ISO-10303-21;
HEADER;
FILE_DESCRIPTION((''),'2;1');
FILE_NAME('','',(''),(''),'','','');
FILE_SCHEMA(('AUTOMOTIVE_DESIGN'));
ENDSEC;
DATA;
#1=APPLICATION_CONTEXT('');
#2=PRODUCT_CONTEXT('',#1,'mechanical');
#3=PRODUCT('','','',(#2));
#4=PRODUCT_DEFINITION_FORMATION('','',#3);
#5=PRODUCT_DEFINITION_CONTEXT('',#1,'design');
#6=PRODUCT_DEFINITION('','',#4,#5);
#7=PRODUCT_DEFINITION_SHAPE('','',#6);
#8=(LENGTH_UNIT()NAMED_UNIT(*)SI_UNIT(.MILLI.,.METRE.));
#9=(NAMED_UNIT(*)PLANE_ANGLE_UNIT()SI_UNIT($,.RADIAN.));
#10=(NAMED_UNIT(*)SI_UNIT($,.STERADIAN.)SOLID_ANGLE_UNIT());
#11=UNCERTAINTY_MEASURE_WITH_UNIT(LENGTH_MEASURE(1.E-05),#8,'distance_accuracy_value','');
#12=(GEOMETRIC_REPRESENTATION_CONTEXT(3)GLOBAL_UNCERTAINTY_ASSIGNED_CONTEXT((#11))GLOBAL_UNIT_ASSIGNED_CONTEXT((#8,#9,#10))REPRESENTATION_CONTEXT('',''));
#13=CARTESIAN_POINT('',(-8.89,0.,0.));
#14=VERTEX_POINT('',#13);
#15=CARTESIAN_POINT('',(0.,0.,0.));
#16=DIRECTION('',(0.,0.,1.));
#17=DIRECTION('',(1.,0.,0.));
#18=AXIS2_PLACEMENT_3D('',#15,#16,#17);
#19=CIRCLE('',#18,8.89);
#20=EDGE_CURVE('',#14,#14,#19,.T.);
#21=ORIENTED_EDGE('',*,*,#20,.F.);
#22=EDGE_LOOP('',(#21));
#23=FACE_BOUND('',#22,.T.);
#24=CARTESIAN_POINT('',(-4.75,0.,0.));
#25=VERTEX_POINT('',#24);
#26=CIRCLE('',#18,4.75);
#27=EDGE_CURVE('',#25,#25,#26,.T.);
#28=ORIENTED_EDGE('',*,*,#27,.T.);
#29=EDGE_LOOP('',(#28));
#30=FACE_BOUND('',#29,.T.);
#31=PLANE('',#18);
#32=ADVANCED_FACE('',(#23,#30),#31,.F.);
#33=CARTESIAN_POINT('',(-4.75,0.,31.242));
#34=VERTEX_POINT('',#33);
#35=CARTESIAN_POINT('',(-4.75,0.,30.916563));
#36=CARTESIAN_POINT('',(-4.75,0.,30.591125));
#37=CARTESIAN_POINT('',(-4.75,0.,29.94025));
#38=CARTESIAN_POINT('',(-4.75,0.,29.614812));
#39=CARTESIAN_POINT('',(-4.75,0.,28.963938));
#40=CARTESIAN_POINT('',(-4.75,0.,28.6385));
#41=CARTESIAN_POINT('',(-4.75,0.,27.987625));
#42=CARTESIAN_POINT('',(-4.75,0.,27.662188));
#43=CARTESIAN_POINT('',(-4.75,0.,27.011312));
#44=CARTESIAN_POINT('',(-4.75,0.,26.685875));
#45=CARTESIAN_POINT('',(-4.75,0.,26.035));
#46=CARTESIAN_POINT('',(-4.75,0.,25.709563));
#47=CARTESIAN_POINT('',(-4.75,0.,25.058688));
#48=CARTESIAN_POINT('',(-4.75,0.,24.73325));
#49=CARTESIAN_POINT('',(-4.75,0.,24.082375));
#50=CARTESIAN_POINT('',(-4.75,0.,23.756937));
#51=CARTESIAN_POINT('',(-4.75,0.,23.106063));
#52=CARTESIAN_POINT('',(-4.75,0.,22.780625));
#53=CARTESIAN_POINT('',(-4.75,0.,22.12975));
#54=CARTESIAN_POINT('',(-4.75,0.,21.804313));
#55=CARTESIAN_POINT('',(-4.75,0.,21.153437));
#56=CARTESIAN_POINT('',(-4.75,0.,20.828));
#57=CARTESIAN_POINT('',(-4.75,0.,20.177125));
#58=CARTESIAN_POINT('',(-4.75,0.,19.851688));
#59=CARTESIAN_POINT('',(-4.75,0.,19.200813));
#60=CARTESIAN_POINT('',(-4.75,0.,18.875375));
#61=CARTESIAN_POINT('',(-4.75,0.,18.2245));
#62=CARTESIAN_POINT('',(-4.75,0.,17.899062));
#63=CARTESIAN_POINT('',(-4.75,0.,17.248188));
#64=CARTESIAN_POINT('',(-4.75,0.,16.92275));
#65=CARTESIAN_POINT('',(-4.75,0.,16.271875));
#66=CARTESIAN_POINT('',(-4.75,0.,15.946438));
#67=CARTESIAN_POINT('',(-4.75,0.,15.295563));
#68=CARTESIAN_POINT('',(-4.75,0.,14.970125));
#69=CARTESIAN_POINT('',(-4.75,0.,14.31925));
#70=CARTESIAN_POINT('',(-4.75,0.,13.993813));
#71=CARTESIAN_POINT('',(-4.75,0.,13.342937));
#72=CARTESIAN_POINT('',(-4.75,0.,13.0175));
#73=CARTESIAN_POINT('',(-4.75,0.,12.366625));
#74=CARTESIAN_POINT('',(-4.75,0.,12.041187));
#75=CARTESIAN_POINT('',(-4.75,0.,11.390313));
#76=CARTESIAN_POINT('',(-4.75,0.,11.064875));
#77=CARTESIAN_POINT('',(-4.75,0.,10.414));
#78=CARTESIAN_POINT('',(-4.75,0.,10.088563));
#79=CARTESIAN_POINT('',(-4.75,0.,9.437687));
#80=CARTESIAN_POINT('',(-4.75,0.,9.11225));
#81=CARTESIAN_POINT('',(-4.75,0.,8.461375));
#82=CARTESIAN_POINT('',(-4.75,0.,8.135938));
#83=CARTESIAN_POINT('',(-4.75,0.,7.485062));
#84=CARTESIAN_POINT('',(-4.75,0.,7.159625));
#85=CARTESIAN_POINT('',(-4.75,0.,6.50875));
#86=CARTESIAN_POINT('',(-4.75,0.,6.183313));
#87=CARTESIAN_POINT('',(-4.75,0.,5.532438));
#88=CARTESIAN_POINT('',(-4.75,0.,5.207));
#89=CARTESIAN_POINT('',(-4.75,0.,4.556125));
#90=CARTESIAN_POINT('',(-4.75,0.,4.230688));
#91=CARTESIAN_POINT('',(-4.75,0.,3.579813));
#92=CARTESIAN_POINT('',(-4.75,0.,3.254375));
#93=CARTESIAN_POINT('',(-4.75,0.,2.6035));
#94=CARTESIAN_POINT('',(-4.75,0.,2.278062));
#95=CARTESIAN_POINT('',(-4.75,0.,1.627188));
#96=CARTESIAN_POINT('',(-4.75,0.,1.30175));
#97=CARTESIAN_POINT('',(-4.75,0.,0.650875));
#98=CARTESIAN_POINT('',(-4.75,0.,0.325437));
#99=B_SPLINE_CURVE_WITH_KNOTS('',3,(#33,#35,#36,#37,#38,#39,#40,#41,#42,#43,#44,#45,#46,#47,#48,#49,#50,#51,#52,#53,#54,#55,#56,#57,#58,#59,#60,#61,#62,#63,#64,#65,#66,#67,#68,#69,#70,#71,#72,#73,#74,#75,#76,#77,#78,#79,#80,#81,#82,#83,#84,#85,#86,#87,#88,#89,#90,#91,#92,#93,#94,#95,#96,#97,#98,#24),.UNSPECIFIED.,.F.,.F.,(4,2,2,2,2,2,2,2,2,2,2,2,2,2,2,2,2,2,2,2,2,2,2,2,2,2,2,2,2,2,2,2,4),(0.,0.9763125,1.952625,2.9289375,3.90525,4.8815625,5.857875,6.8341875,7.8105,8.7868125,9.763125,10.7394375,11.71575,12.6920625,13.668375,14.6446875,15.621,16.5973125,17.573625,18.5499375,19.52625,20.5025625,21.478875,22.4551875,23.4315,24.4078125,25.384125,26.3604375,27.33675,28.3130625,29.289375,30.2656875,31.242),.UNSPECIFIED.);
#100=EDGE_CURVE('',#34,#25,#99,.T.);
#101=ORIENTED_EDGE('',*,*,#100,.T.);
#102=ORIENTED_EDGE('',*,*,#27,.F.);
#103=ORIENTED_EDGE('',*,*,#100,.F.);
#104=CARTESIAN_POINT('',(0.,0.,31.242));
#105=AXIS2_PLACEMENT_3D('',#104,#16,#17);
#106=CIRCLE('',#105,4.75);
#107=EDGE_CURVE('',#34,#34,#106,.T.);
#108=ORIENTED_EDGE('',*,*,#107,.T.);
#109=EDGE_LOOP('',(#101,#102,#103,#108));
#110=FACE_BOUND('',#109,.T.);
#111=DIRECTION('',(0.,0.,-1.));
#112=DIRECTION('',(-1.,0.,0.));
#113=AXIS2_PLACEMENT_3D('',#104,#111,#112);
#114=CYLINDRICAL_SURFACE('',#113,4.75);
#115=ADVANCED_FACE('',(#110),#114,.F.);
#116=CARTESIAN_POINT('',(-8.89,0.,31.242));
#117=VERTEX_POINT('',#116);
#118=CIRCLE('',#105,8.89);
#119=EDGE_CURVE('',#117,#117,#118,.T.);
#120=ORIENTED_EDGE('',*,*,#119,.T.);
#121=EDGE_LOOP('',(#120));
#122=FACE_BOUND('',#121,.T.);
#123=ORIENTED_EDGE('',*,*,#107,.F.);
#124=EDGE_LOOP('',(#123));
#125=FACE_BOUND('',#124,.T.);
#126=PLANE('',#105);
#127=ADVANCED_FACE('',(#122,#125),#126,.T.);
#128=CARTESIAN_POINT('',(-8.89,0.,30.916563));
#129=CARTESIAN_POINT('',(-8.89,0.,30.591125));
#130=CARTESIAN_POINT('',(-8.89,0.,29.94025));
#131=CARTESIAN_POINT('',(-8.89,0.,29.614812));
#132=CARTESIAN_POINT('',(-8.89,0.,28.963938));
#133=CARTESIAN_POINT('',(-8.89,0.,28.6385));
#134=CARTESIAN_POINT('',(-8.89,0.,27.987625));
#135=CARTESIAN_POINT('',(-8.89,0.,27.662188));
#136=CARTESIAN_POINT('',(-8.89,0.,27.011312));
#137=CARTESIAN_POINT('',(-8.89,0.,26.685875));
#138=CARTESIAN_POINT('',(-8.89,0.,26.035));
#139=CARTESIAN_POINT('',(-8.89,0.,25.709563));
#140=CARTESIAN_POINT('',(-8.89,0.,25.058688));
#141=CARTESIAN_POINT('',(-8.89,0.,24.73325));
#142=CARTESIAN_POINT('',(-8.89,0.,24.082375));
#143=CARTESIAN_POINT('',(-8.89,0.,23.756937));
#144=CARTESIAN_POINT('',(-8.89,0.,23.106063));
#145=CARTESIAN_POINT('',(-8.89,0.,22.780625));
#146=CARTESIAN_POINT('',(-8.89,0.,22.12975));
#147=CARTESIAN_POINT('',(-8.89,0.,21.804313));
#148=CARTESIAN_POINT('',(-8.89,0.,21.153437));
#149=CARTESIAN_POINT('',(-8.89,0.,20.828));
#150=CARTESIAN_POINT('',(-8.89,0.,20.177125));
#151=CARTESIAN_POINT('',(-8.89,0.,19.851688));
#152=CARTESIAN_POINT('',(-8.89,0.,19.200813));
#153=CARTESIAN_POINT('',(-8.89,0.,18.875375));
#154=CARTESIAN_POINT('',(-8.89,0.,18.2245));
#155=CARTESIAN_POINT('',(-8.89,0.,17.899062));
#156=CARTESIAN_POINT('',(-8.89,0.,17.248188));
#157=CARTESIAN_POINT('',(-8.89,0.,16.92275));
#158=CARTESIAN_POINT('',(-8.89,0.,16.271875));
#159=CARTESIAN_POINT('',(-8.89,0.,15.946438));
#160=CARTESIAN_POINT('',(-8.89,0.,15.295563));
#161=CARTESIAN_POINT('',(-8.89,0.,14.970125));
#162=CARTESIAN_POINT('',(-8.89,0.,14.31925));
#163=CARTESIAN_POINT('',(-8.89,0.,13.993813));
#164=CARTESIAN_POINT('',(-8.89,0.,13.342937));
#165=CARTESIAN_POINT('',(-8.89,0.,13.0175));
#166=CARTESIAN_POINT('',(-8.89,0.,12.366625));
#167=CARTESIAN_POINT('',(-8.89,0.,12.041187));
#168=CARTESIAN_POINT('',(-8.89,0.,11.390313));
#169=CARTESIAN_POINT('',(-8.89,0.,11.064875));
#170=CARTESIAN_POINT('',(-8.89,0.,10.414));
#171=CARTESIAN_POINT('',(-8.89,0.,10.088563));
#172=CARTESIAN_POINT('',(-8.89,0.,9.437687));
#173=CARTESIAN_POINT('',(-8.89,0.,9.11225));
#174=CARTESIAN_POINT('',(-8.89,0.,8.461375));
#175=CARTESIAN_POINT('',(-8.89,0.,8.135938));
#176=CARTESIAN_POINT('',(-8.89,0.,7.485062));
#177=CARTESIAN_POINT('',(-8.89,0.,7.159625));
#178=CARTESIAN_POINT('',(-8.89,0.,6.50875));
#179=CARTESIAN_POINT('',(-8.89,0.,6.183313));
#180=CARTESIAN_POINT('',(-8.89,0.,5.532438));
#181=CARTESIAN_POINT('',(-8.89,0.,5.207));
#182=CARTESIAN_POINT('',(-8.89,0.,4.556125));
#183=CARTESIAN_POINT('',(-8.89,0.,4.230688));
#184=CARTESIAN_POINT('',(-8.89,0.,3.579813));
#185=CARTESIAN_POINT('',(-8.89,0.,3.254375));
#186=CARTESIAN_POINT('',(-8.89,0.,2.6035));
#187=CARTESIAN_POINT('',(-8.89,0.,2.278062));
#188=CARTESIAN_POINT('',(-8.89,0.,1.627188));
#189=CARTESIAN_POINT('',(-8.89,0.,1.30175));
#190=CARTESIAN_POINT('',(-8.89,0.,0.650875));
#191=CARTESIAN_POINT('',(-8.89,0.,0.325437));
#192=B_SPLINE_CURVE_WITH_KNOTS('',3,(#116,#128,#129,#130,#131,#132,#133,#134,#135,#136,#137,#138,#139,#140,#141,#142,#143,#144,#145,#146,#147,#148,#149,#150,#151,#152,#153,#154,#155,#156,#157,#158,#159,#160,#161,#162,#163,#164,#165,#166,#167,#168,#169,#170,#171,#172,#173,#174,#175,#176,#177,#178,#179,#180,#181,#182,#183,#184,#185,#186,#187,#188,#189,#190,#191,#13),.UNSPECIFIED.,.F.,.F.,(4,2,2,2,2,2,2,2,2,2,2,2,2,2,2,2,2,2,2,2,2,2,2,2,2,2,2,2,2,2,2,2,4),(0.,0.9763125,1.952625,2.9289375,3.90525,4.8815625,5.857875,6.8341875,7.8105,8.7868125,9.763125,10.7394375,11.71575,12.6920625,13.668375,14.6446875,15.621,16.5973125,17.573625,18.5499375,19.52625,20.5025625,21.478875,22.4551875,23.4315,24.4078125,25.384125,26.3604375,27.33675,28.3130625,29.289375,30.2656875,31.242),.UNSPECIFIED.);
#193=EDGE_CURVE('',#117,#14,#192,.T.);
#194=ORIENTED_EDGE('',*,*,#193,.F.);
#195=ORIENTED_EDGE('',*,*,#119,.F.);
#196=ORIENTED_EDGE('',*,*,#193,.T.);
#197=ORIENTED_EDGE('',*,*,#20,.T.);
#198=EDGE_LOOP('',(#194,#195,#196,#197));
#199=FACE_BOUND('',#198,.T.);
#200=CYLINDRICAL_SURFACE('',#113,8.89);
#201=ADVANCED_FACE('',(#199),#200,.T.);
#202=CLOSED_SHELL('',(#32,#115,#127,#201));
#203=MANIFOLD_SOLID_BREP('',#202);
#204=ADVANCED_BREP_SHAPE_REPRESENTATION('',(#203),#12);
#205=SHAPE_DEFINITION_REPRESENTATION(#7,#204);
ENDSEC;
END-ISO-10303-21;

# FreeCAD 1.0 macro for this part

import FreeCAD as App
import Part
import Sketcher

V = App.Vector
Q = App.Units.Quantity

doc = App.newDocument("Part")
body = doc.addObject("PartDesign::Body", "Body")

# Sketch on XY plane
sketch1 = body.newObject("Sketcher::SketchObject", "Sketch")
sketch1.AttachmentSupport = (doc.getObject("XY_Plane"), [""])
sketch1.MapMode = "FlatFace"
sketch1.addGeometry([
    Part.Circle(V(0, 0, 0), V(0, 0, 1), 8.9),
    Part.Circle(V(0, 0, 0), V(0, 0, 1), 4.8),
], False)
sketch1.addConstraint([
    Sketcher.Constraint("Coincident", 0, 3, -1, 1),
    Sketcher.Constraint("Coincident", 1, 3, -1, 1),
    Sketcher.Constraint("Diameter", 0, Q("0.7 in")),
    Sketcher.Constraint("Diameter", 1, 9.5),
])
pad1 = body.newObject("PartDesign::Pad", "Pad")
pad1.Profile = sketch1
pad1.Length = Q("1.23 in")

doc.recompute()
